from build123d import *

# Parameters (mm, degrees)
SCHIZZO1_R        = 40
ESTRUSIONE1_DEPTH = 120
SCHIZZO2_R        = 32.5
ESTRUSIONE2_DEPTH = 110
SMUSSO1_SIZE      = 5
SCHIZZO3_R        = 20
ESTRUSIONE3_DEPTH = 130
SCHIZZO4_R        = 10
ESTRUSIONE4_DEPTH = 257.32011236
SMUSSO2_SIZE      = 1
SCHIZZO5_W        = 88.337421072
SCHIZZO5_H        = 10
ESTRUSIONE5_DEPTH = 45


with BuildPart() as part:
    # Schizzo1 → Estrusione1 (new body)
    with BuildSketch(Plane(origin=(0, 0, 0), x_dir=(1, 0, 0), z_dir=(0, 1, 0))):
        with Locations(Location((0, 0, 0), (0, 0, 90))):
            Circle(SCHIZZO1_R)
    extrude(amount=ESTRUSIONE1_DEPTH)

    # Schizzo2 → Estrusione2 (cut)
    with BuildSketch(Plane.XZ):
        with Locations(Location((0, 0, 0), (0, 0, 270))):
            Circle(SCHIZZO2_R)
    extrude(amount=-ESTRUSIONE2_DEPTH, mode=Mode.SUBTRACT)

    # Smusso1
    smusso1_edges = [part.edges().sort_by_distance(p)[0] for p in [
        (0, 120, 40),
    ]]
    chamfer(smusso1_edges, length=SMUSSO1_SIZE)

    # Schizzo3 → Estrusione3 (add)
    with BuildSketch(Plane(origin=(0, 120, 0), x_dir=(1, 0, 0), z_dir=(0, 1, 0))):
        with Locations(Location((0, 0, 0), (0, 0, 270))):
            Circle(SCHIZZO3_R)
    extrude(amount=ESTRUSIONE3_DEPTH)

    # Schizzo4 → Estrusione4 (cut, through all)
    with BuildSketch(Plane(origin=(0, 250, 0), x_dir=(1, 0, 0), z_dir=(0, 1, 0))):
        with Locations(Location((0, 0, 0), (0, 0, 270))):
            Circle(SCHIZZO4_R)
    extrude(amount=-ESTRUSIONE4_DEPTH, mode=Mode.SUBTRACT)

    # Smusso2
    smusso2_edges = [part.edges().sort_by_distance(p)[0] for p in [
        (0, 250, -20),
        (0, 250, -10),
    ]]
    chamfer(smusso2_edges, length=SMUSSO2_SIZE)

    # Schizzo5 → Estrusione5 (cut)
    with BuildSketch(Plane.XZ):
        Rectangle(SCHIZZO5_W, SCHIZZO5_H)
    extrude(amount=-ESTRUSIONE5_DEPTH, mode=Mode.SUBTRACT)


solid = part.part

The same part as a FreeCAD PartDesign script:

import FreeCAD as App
import Part
import Sketcher
Q = App.Units.Quantity


def edges_at(feature, points):
    """Names of the edges that pass closest to the given points."""
    edges = feature.Shape.Edges
    near = lambda p: min(range(len(edges)), key=lambda i: edges[i].distToShape(Part.Vertex(*p))[0])
    return sorted({f"Edge{near(p) + 1}" for p in points})


def add_polygon(sketch, points):
    """Adds a closed chain of lines whose ends are joined by coincident constraints."""
    first, n = sketch.GeometryCount, len(points)
    for a, b in zip(points, points[1:] + points[:1]):
        sketch.addGeometry(Part.LineSegment(App.Vector(*a, 0), App.Vector(*b, 0)), False)
    for i in range(n):
        sketch.addConstraint(Sketcher.Constraint("Coincident", first + i, 2, first + (i + 1) % n, 1))

doc = App.newDocument("Part")
body = doc.addObject("PartDesign::Body", "Body")

# Sketch on XZ plane
sketch1 = body.newObject("Sketcher::SketchObject", "Sketch")
sketch1.AttachmentSupport = (doc.getObject("XZ_Plane"), [""])
sketch1.MapMode = "FlatFace"
sketch1.addGeometry(Part.Circle(App.Vector(0, 0, 0), App.Vector(0, 0, 1), 40), False)
sketch1.addConstraint([
    Sketcher.Constraint("Coincident", 0, 3, -1, 1),
    Sketcher.Constraint("Diameter", 0, Q("80 mm")),
])
pad1 = body.newObject("PartDesign::Pad", "Pad")
pad1.Profile = sketch1
pad1.Length = 120
pad1.Reversed = True

# Sketch on XZ plane
sketch2 = body.newObject("Sketcher::SketchObject", "Sketch001")
sketch2.AttachmentSupport = (doc.getObject("XZ_Plane"), [""])
sketch2.MapMode = "FlatFace"
sketch2.addGeometry(Part.Circle(App.Vector(0, 0, 0), App.Vector(0, 0, 1), 32), False)
sketch2.addConstraint([
    Sketcher.Constraint("Coincident", 0, 3, -1, 1),
    Sketcher.Constraint("Diameter", 0, Q("65 mm")),
])
pocket1 = body.newObject("PartDesign::Pocket", "Pocket")
pocket1.Profile = sketch2
pocket1.Length = 110
doc.recompute()

chamfer = body.newObject("PartDesign::Chamfer", "Chamfer")
chamfer.Base = (pocket1, edges_at(pocket1, [(0, 120, 40)]))
chamfer.Size = 5

# Sketch on XZ plane
sketch3 = body.newObject("Sketcher::SketchObject", "Sketch002")
sketch3.AttachmentSupport = (doc.getObject("XZ_Plane"), [""])
sketch3.MapMode = "FlatFace"
sketch3.AttachmentOffset = App.Placement(App.Vector(0, 0, -120), App.Rotation())
sketch3.addGeometry(Part.Circle(App.Vector(0, 0, 0), App.Vector(0, 0, 1), 20), False)
sketch3.addConstraint([
    Sketcher.Constraint("Coincident", 0, 3, -1, 1),
    Sketcher.Constraint("Diameter", 0, Q("40 mm")),
])
pad2 = body.newObject("PartDesign::Pad", "Pad001")
pad2.Profile = sketch3
pad2.Length = 130
pad2.Reversed = True

# Sketch on XZ plane
sketch4 = body.newObject("Sketcher::SketchObject", "Sketch003")
sketch4.AttachmentSupport = (doc.getObject("XZ_Plane"), [""])
sketch4.MapMode = "FlatFace"
sketch4.AttachmentOffset = App.Placement(App.Vector(0, 0, -250), App.Rotation())
sketch4.addGeometry(Part.Circle(App.Vector(0, 0, 0), App.Vector(0, 0, 1), 10), False)
sketch4.addConstraint([
    Sketcher.Constraint("Coincident", 0, 3, -1, 1),
    Sketcher.Constraint("Diameter", 0, Q("20 mm")),
])
pocket2 = body.newObject("PartDesign::Pocket", "Pocket001")
pocket2.Profile = sketch4
pocket2.Type = "ThroughAll"
pocket2.Reversed = True
doc.recompute()

chamfer2 = body.newObject("PartDesign::Chamfer", "Chamfer001")
chamfer2.Base = (pocket2, edges_at(pocket2, [(0, 250, -20), (0, 250, -10)]))
chamfer2.Size = 1

# Sketch on XZ plane
sketch5 = body.newObject("Sketcher::SketchObject", "Sketch004")
sketch5.AttachmentSupport = (doc.getObject("XZ_Plane"), [""])
sketch5.MapMode = "FlatFace"
add_polygon(sketch5, [(-44, 5), (-44, -5), (44, -5), (44, 5)])  # lines 0-3
sketch5.addConstraint([
    Sketcher.Constraint("Vertical", 0),
    Sketcher.Constraint("Horizontal", 1),
    Sketcher.Constraint("Vertical", 2),
    Sketcher.Constraint("Horizontal", 3),
    Sketcher.Constraint("Symmetric", 0, 2, 2, 2, -1, 1),
    Sketcher.Constraint("DistanceY", 0, 2, 0, 1, Q("10 mm")),
    Sketcher.Constraint("DistanceX", 1, 1, 1, 2, Q("88.337421 mm")),
])
pocket3 = body.newObject("PartDesign::Pocket", "Pocket002")
pocket3.Profile = sketch5
pocket3.Length = 45

doc.recompute()
